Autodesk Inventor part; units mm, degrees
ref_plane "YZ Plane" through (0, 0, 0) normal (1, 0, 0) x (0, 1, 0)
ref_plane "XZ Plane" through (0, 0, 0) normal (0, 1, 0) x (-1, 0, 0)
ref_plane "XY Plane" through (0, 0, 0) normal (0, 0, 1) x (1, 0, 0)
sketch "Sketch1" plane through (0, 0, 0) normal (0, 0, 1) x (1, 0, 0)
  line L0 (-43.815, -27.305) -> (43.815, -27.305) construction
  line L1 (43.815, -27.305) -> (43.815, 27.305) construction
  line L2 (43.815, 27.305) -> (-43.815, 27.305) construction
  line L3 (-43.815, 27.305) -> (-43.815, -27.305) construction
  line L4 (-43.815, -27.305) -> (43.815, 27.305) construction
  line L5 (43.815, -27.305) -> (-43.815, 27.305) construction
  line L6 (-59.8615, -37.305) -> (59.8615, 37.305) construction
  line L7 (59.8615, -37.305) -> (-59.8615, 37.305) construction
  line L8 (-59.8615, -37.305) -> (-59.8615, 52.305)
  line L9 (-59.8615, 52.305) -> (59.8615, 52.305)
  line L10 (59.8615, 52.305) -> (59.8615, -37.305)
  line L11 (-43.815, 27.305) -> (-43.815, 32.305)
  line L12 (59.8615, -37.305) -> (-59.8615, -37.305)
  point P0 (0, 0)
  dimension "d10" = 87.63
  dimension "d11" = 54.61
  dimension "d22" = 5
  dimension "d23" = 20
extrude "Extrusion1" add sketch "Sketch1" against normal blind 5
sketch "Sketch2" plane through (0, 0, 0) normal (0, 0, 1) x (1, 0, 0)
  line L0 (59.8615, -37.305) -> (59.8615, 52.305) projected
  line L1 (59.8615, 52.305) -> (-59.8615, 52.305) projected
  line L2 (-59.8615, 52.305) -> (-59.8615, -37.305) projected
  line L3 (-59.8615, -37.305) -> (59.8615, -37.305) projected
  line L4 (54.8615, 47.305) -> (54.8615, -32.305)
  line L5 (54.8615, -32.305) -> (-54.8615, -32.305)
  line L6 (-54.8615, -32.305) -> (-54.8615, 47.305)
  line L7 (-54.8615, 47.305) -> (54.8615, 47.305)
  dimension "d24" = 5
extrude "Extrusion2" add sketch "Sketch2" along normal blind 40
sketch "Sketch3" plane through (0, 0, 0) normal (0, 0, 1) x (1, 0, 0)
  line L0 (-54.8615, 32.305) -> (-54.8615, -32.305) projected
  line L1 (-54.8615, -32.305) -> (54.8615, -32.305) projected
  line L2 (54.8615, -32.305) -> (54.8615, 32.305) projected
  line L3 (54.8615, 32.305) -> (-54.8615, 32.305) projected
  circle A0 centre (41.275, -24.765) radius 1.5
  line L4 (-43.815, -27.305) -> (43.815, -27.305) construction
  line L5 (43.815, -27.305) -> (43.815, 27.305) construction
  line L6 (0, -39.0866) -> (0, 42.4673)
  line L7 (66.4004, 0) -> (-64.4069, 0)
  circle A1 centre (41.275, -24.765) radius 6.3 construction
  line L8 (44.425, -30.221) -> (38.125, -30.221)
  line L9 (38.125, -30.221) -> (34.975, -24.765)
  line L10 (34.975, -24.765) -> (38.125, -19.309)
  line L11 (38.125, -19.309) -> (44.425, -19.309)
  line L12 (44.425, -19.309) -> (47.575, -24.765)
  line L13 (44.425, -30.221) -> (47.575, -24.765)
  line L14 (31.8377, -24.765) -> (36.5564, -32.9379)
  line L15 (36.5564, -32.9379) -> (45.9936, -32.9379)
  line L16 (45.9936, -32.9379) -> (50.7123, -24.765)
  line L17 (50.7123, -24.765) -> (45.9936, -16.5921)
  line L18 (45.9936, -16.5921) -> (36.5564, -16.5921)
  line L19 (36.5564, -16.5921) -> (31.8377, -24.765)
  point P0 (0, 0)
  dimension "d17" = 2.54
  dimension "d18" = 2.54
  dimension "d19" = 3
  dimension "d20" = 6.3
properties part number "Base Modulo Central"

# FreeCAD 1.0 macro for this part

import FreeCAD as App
import Part
import Sketcher
from FreeCAD import Vector

doc = App.newDocument("Part")
body = doc.addObject("PartDesign::Body", "Body")

# Sketch on XY plane
sketch1 = doc.addObject("Sketcher::SketchObject", "Sketch")
body.addObject(sketch1)
sketch1.AttachmentSupport = (doc.XY_Plane, [""])
sketch1.MapMode = "FlatFace"
sketch1.addGeometry(Part.LineSegment(Vector(-59.8615, 52.305, 0), Vector(-59.8615, -37.305, 0)), False)
sketch1.addGeometry(Part.LineSegment(Vector(-59.8615, -37.305, 0), Vector(59.8615, -37.305, 0)), False)
sketch1.addGeometry(Part.LineSegment(Vector(59.8615, -37.305, 0), Vector(59.8615, 52.305, 0)), False)
sketch1.addGeometry(Part.LineSegment(Vector(59.8615, 52.305, 0), Vector(-59.8615, 52.305, 0)), False)
sketch1.addConstraint(Sketcher.Constraint("Coincident", 0, 2, 1, 1))
sketch1.addConstraint(Sketcher.Constraint("Coincident", 1, 2, 2, 1))
sketch1.addConstraint(Sketcher.Constraint("Coincident", 2, 2, 3, 1))
sketch1.addConstraint(Sketcher.Constraint("Coincident", 3, 2, 0, 1))
sketch1.addConstraint(Sketcher.Constraint("Vertical", 0))
sketch1.addConstraint(Sketcher.Constraint("Horizontal", 1))
sketch1.addConstraint(Sketcher.Constraint("Vertical", 2))
sketch1.addConstraint(Sketcher.Constraint("Horizontal", 3))
sketch1.addConstraint(Sketcher.Constraint("DistanceY", 0, 2, 0, 1, 89.61))
sketch1.addConstraint(Sketcher.Constraint("DistanceX", 1, 1, 1, 2, 119.723))
sketch1.addConstraint(Sketcher.Constraint("DistanceY", 0, 2, -1, 1, 37.305))
sketch1.addConstraint(Sketcher.Constraint("DistanceX", 0, 2, -1, 1, 59.8615))
pad1 = doc.addObject("PartDesign::Pad", "Pad")
body.addObject(pad1)
pad1.Profile = sketch1
pad1.Length = 5
pad1.Reversed = True

# Sketch on XY plane
sketch2 = doc.addObject("Sketcher::SketchObject", "Sketch001")
body.addObject(sketch2)
sketch2.AttachmentSupport = (doc.XY_Plane, [""])
sketch2.MapMode = "FlatFace"
sketch2.addGeometry(Part.LineSegment(Vector(-59.8615, -37.305, 0), Vector(59.8615, -37.305, 0)), False)
sketch2.addGeometry(Part.LineSegment(Vector(59.8615, -37.305, 0), Vector(59.8615, 52.305, 0)), False)
sketch2.addGeometry(Part.LineSegment(Vector(59.8615, 52.305, 0), Vector(-59.8615, 52.305, 0)), False)
sketch2.addGeometry(Part.LineSegment(Vector(-59.8615, 52.305, 0), Vector(-59.8615, -37.305, 0)), False)
sketch2.addGeometry(Part.LineSegment(Vector(-54.8615, 47.305, 0), Vector(54.8615, 47.305, 0)), False)
sketch2.addGeometry(Part.LineSegment(Vector(54.8615, 47.305, 0), Vector(54.8615, -32.305, 0)), False)
sketch2.addGeometry(Part.LineSegment(Vector(54.8615, -32.305, 0), Vector(-54.8615, -32.305, 0)), False)
sketch2.addGeometry(Part.LineSegment(Vector(-54.8615, -32.305, 0), Vector(-54.8615, 47.305, 0)), False)
sketch2.addConstraint(Sketcher.Constraint("Coincident", 0, 2, 1, 1))
sketch2.addConstraint(Sketcher.Constraint("Coincident", 1, 2, 2, 1))
sketch2.addConstraint(Sketcher.Constraint("Coincident", 2, 2, 3, 1))
sketch2.addConstraint(Sketcher.Constraint("Coincident", 3, 2, 0, 1))
sketch2.addConstraint(Sketcher.Constraint("Coincident", 4, 2, 5, 1))
sketch2.addConstraint(Sketcher.Constraint("Coincident", 5, 2, 6, 1))
sketch2.addConstraint(Sketcher.Constraint("Coincident", 6, 2, 7, 1))
sketch2.addConstraint(Sketcher.Constraint("Coincident", 7, 2, 4, 1))
sketch2.addConstraint(Sketcher.Constraint("Horizontal", 0))
sketch2.addConstraint(Sketcher.Constraint("Vertical", 1))
sketch2.addConstraint(Sketcher.Constraint("Horizontal", 2))
sketch2.addConstraint(Sketcher.Constraint("Vertical", 3))
sketch2.addConstraint(Sketcher.Constraint("Horizontal", 4))
sketch2.addConstraint(Sketcher.Constraint("Vertical", 5))
sketch2.addConstraint(Sketcher.Constraint("Horizontal", 6))
sketch2.addConstraint(Sketcher.Constraint("Vertical", 7))
sketch2.addConstraint(Sketcher.Constraint("DistanceX", 4, 2, 1, 2, 5.0))
sketch2.addConstraint(Sketcher.Constraint("DistanceY", 4, 2, 1, 2, 5.0))
sketch2.addConstraint(Sketcher.Constraint("DistanceY", 0, 2, 5, 2, 5.0))
sketch2.addConstraint(Sketcher.Constraint("DistanceX", 3, 2, 6, 2, 5.0))
sketch2.addConstraint(Sketcher.Constraint("DistanceY", 1, 1, 1, 2, 89.61))
sketch2.addConstraint(Sketcher.Constraint("DistanceX", 0, 1, 0, 2, 119.723))
sketch2.addConstraint(Sketcher.Constraint("DistanceY", 0, 2, -1, 1, 37.305))
sketch2.addConstraint(Sketcher.Constraint("DistanceX", -1, 1, 0, 2, 59.8615))
pad2 = doc.addObject("PartDesign::Pad", "Pad001")
body.addObject(pad2)
pad2.Profile = sketch2
pad2.Length = 40

doc.recompute()
